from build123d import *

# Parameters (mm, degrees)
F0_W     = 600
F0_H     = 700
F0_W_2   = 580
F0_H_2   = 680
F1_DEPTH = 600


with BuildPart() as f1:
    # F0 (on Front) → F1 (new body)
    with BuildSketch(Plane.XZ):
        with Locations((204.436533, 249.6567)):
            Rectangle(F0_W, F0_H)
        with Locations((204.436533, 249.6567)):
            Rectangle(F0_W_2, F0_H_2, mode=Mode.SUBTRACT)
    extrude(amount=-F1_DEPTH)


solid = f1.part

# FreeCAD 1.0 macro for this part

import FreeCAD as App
import Part
import Sketcher

V = App.Vector


def add_polygon(sketch, points):
    """Adds a closed chain of lines whose ends are joined by coincident constraints."""
    first, n = sketch.GeometryCount, len(points)
    for a, b in zip(points, points[1:] + points[:1]):
        sketch.addGeometry(Part.LineSegment(App.Vector(*a, 0), App.Vector(*b, 0)), False)
    for i in range(n):
        sketch.addConstraint(Sketcher.Constraint("Coincident", first + i, 2, first + (i + 1) % n, 1))

doc = App.newDocument("Part")
body = doc.addObject("PartDesign::Body", "Body")

# Sketch on XZ plane
sketch1 = body.newObject("Sketcher::SketchObject", "Sketch")
sketch1.AttachmentSupport = (doc.getObject("XZ_Plane"), [""])
sketch1.MapMode = "FlatFace"
add_polygon(sketch1, [(-95.563467, 599.6567), (-95.563467, -100.3433), (504.436533, -100.3433), (504.436533, 599.6567)])  # lines 0-3
add_polygon(sketch1, [(494.436533, -90.3433), (-85.563467, -90.3433), (-85.563467, 589.6567), (494.436533, 589.6567)])  # lines 4-7
sketch1.addConstraint(Sketcher.Constraint("Vertical", 0))
sketch1.addConstraint(Sketcher.Constraint("Horizontal", 1))
sketch1.addConstraint(Sketcher.Constraint("Vertical", 2))
sketch1.addConstraint(Sketcher.Constraint("Horizontal", 3))
sketch1.addConstraint(Sketcher.Constraint("Horizontal", 4))
sketch1.addConstraint(Sketcher.Constraint("Vertical", 5))
sketch1.addConstraint(Sketcher.Constraint("Horizontal", 6))
sketch1.addConstraint(Sketcher.Constraint("Vertical", 7))
sketch1.addConstraint(Sketcher.Constraint("DistanceX", 1, 1, 1, 2, 600.0))
sketch1.addConstraint(Sketcher.Constraint("DistanceX", 4, 2, 4, 1, 580.0))
sketch1.addConstraint(Sketcher.Constraint("DistanceY", 0, 2, 0, 1, 700.0))
sketch1.addConstraint(Sketcher.Constraint("DistanceY", 5, 1, 5, 2, 680.0))
sketch1.addConstraint(Sketcher.Constraint("DistanceX", 0, 2, 4, 2, 10.0))
sketch1.addConstraint(Sketcher.Constraint("DistanceY", 0, 2, 4, 2, 10.0))
sketch1.addConstraint(Sketcher.Constraint("DistanceY", 0, 2, -1, 1, 100.3433))
sketch1.addConstraint(Sketcher.Constraint("DistanceX", 0, 2, -1, 1, 95.563467))
pad1 = body.newObject("PartDesign::Pad", "Pad")
pad1.Profile = sketch1
pad1.Length = 600
pad1.Reversed = True

doc.recompute()
